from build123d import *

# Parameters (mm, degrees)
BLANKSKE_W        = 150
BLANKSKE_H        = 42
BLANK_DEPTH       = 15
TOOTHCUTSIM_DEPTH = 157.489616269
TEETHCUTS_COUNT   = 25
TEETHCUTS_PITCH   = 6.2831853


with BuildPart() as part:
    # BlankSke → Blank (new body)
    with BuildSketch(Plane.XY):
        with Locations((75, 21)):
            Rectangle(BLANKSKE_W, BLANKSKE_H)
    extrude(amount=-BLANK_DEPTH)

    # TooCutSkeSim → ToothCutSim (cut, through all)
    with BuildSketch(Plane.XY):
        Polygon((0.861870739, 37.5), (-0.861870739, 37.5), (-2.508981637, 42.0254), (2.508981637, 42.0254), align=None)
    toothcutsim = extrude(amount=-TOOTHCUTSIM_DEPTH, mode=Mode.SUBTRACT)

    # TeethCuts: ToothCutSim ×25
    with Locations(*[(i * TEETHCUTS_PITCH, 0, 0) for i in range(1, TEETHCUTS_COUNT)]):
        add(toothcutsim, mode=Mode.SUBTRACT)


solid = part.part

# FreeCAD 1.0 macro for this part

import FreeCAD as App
import Part
import Sketcher
from FreeCAD import Vector
Q = App.Units.Quantity


def add_polygon(sketch, points):
    """Adds a closed chain of lines whose ends are joined by coincident constraints."""
    first, n = sketch.GeometryCount, len(points)
    for a, b in zip(points, points[1:] + points[:1]):
        sketch.addGeometry(Part.LineSegment(App.Vector(*a, 0), App.Vector(*b, 0)), False)
    for i in range(n):
        sketch.addConstraint(Sketcher.Constraint("Coincident", first + i, 2, first + (i + 1) % n, 1))

doc = App.newDocument("Part")
body = doc.addObject("PartDesign::Body", "Body")

sketch1 = body.newObject("Sketcher::SketchObject", "Sketch")
sketch1.AttachmentSupport = (doc.getObject("XY_Plane"), [""])
sketch1.MapMode = "FlatFace"
add_polygon(sketch1, [(0, 42), (0, 0), (150, 0), (150, 42)])
sketch1.addConstraint([
    Sketcher.Constraint("Vertical", 0),
    Sketcher.Constraint("Horizontal", 1),
    Sketcher.Constraint("Vertical", 2),
    Sketcher.Constraint("Horizontal", 3),
    Sketcher.Constraint("Coincident", 0, 2, -1, 1),
    Sketcher.Constraint("DistanceX", 1, 1, 1, 2, 150.0),
    Sketcher.Constraint("DistanceY", 0, 2, 0, 1, 42.0),
])
pad1 = body.newObject("PartDesign::Pad", "Pad")
pad1.Profile = sketch1
pad1.Length = 15
pad1.Reversed = True

sketch2 = body.newObject("Sketcher::SketchObject", "Sketch001")
sketch2.AttachmentSupport = (doc.getObject("XY_Plane"), [""])
sketch2.MapMode = "FlatFace"
add_polygon(sketch2, [(-0.861871, 37.5), (0.861871, 37.5), (2.508982, 42.0254), (-2.508982, 42.0254)])
sketch2.addConstraint([
    Sketcher.Constraint("Horizontal", 0),
    Sketcher.Constraint("Horizontal", 2),
    Sketcher.Constraint("Equal", 1, 3),
    Sketcher.Constraint("Angle", 1, Q("70 deg")),
    Sketcher.Constraint("DistanceY", -1, 1, 0, 2, 37.5),
    Sketcher.Constraint("DistanceX", 0, 1, 0, 2, 1.723741),
    Sketcher.Constraint("DistanceY", -1, 1, 1, 2, 42.0254),
    Sketcher.Constraint("DistanceX", -1, 1, 0, 2, 0.861871),
])
pocket1 = body.newObject("PartDesign::Pocket", "Pocket")
pocket1.Profile = sketch2
pocket1.Type = "ThroughAll"
doc.recompute()

linearpattern = body.newObject("PartDesign::LinearPattern", "LinearPattern")
linearpattern.Originals = [pocket1]
linearpattern.Direction = (doc.getObject("X_Axis"), [""])
linearpattern.Mode = "offset"
linearpattern.Offset = 6.283185
linearpattern.Occurrences = 25
body.Tip = linearpattern

doc.recompute()
